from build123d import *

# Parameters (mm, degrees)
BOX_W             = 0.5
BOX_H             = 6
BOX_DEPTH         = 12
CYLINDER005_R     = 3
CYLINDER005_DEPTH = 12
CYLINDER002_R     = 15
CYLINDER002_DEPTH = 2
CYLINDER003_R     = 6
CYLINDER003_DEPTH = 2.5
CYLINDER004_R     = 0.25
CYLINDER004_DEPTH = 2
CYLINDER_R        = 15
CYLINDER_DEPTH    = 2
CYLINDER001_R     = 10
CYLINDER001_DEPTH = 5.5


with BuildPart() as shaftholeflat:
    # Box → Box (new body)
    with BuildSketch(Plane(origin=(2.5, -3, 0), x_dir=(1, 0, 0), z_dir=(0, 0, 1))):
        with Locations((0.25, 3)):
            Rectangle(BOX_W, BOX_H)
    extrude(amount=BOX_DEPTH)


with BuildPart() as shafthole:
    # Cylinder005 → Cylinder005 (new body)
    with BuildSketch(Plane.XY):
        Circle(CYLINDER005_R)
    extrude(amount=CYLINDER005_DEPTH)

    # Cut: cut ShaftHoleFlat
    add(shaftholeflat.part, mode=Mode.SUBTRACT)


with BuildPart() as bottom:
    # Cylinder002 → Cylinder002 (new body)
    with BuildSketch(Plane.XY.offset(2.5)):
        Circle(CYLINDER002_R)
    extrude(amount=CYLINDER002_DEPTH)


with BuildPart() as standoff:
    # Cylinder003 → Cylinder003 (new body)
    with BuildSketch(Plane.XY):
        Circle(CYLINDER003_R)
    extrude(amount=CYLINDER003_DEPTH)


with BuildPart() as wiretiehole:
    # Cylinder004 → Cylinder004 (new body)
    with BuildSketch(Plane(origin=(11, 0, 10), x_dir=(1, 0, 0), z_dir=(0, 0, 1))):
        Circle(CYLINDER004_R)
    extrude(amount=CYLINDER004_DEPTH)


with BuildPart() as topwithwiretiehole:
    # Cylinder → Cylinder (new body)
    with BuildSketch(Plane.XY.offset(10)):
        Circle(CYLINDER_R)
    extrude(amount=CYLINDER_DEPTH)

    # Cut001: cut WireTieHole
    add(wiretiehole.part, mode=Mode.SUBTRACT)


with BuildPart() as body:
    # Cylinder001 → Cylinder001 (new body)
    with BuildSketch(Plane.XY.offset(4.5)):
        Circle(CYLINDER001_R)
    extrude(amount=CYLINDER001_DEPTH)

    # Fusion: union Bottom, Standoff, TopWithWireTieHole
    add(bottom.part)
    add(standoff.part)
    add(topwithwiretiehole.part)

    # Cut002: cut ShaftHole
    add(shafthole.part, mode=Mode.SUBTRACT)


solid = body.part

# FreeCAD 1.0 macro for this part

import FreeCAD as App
import Part
import Sketcher

V = App.Vector
Q = App.Units.Quantity

doc = App.newDocument("Part")
body = doc.addObject("PartDesign::Body", "Body")

sketch1 = doc.addObject("Sketcher::SketchObject", "Sketch")
body.addObject(sketch1)
sketch1.AttachmentSupport = (doc.XY_Plane, [""])
sketch1.MapMode = "FlatFace"
sketch1.addGeometry([
    Part.LineSegment(V(2.5, 3, 0), V(2.5, -3, 0)),
    Part.LineSegment(V(2.5, -3, 0), V(3, -3, 0)),
    Part.LineSegment(V(3, -3, 0), V(3, 3, 0)),
    Part.LineSegment(V(3, 3, 0), V(2.5, 3, 0)),
], False)
sketch1.addConstraint([
    Sketcher.Constraint("Coincident", 0, 2, 1, 1),
    Sketcher.Constraint("Coincident", 1, 2, 2, 1),
    Sketcher.Constraint("Coincident", 2, 2, 3, 1),
    Sketcher.Constraint("Coincident", 3, 2, 0, 1),
    Sketcher.Constraint("Vertical", 0),
    Sketcher.Constraint("Horizontal", 1),
    Sketcher.Constraint("Vertical", 2),
    Sketcher.Constraint("Horizontal", 3),
    Sketcher.Constraint("DistanceY", 0, 2, 0, 1, Q("6 mm")),
    Sketcher.Constraint("DistanceX", 1, 1, 1, 2, Q("0.5 mm")),
    Sketcher.Constraint("DistanceY", 0, 2, -1, 1, Q("3 mm")),
    Sketcher.Constraint("DistanceX", -1, 1, 1, 2, Q("3 mm")),
])
pad1 = doc.addObject("PartDesign::Pad", "Pad")
body.addObject(pad1)
pad1.Profile = sketch1
pad1.Length = 12
body2 = doc.addObject("PartDesign::Body", "Body001")

sketch2 = doc.addObject("Sketcher::SketchObject", "Sketch001")
body2.addObject(sketch2)
sketch2.AttachmentSupport = (doc.getObject("XY_Plane001"), [""])
sketch2.MapMode = "FlatFace"
sketch2.addGeometry(Part.Circle(V(0, 0, 0), V(0, 0, 1), 3), False)
sketch2.addConstraint([
    Sketcher.Constraint("Coincident", 0, 3, -1, 1),
    Sketcher.Constraint("Diameter", 0, Q("6 mm")),
])
pad2 = doc.addObject("PartDesign::Pad", "Pad001")
body2.addObject(pad2)
pad2.Profile = sketch2
pad2.Length = 12
doc.recompute()

boolean = doc.addObject("PartDesign::Boolean", "Boolean")
body2.addObject(boolean)
boolean.Type = "Cut"
boolean.addObjects([body])
body3 = doc.addObject("PartDesign::Body", "Body002")

sketch3 = doc.addObject("Sketcher::SketchObject", "Sketch002")
body3.addObject(sketch3)
sketch3.AttachmentSupport = (doc.getObject("XY_Plane002"), [""])
sketch3.MapMode = "FlatFace"
sketch3.AttachmentOffset = App.Placement(V(0, 0, 2.5), App.Rotation())
sketch3.addGeometry(Part.Circle(V(0, 0, 0), V(0, 0, 1), 15), False)
sketch3.addConstraint([
    Sketcher.Constraint("Coincident", 0, 3, -1, 1),
    Sketcher.Constraint("Diameter", 0, Q("30 mm")),
])
pad3 = doc.addObject("PartDesign::Pad", "Pad002")
body3.addObject(pad3)
pad3.Profile = sketch3
pad3.Length = 2
body4 = doc.addObject("PartDesign::Body", "Body003")

sketch4 = doc.addObject("Sketcher::SketchObject", "Sketch003")
body4.addObject(sketch4)
sketch4.AttachmentSupport = (doc.getObject("XY_Plane003"), [""])
sketch4.MapMode = "FlatFace"
sketch4.addGeometry(Part.Circle(V(0, 0, 0), V(0, 0, 1), 6), False)
sketch4.addConstraint([
    Sketcher.Constraint("Coincident", 0, 3, -1, 1),
    Sketcher.Constraint("Diameter", 0, Q("12 mm")),
])
pad4 = doc.addObject("PartDesign::Pad", "Pad003")
body4.addObject(pad4)
pad4.Profile = sketch4
pad4.Length = 2.5
body5 = doc.addObject("PartDesign::Body", "Body004")

sketch5 = doc.addObject("Sketcher::SketchObject", "Sketch004")
body5.addObject(sketch5)
sketch5.AttachmentSupport = (doc.getObject("XY_Plane004"), [""])
sketch5.MapMode = "FlatFace"
sketch5.AttachmentOffset = App.Placement(V(0, 0, 10), App.Rotation())
sketch5.addGeometry(Part.Circle(V(11, 0, 0), V(0, 0, 1), 0.25), False)
sketch5.addConstraint([
    Sketcher.Constraint("PointOnObject", 0, 3, -1),
    Sketcher.Constraint("Diameter", 0, Q("0.5 mm")),
    Sketcher.Constraint("DistanceX", -1, 1, 0, 3, Q("11 mm")),
])
pad5 = doc.addObject("PartDesign::Pad", "Pad004")
body5.addObject(pad5)
pad5.Profile = sketch5
pad5.Length = 2
body6 = doc.addObject("PartDesign::Body", "Body005")

sketch6 = doc.addObject("Sketcher::SketchObject", "Sketch005")
body6.addObject(sketch6)
sketch6.AttachmentSupport = (doc.getObject("XY_Plane005"), [""])
sketch6.MapMode = "FlatFace"
sketch6.AttachmentOffset = App.Placement(V(0, 0, 10), App.Rotation())
sketch6.addGeometry(Part.Circle(V(0, 0, 0), V(0, 0, 1), 15), False)
sketch6.addConstraint([
    Sketcher.Constraint("Coincident", 0, 3, -1, 1),
    Sketcher.Constraint("Diameter", 0, Q("30 mm")),
])
pad6 = doc.addObject("PartDesign::Pad", "Pad005")
body6.addObject(pad6)
pad6.Profile = sketch6
pad6.Length = 2
doc.recompute()

boolean2 = doc.addObject("PartDesign::Boolean", "Boolean001")
body6.addObject(boolean2)
boolean2.Type = "Cut"
boolean2.addObjects([body5])
body7 = doc.addObject("PartDesign::Body", "Body006")

sketch7 = doc.addObject("Sketcher::SketchObject", "Sketch006")
body7.addObject(sketch7)
sketch7.AttachmentSupport = (doc.getObject("XY_Plane006"), [""])
sketch7.MapMode = "FlatFace"
sketch7.AttachmentOffset = App.Placement(V(0, 0, 4.5), App.Rotation())
sketch7.addGeometry(Part.Circle(V(0, 0, 0), V(0, 0, 1), 10), False)
sketch7.addConstraint([
    Sketcher.Constraint("Coincident", 0, 3, -1, 1),
    Sketcher.Constraint("Diameter", 0, Q("20 mm")),
])
pad7 = doc.addObject("PartDesign::Pad", "Pad006")
body7.addObject(pad7)
pad7.Profile = sketch7
pad7.Length = 5.5
doc.recompute()

boolean3 = doc.addObject("PartDesign::Boolean", "Boolean002")
body7.addObject(boolean3)
boolean3.Type = "Fuse"
boolean3.addObjects([body3])
doc.recompute()

boolean4 = doc.addObject("PartDesign::Boolean", "Boolean003")
body7.addObject(boolean4)
boolean4.Type = "Fuse"
boolean4.addObjects([body4])
doc.recompute()

boolean5 = doc.addObject("PartDesign::Boolean", "Boolean004")
body7.addObject(boolean5)
boolean5.Type = "Fuse"
boolean5.addObjects([body6])
doc.recompute()

boolean6 = doc.addObject("PartDesign::Boolean", "Boolean005")
body7.addObject(boolean6)
boolean6.Type = "Cut"
boolean6.addObjects([body2])

doc.recompute()
